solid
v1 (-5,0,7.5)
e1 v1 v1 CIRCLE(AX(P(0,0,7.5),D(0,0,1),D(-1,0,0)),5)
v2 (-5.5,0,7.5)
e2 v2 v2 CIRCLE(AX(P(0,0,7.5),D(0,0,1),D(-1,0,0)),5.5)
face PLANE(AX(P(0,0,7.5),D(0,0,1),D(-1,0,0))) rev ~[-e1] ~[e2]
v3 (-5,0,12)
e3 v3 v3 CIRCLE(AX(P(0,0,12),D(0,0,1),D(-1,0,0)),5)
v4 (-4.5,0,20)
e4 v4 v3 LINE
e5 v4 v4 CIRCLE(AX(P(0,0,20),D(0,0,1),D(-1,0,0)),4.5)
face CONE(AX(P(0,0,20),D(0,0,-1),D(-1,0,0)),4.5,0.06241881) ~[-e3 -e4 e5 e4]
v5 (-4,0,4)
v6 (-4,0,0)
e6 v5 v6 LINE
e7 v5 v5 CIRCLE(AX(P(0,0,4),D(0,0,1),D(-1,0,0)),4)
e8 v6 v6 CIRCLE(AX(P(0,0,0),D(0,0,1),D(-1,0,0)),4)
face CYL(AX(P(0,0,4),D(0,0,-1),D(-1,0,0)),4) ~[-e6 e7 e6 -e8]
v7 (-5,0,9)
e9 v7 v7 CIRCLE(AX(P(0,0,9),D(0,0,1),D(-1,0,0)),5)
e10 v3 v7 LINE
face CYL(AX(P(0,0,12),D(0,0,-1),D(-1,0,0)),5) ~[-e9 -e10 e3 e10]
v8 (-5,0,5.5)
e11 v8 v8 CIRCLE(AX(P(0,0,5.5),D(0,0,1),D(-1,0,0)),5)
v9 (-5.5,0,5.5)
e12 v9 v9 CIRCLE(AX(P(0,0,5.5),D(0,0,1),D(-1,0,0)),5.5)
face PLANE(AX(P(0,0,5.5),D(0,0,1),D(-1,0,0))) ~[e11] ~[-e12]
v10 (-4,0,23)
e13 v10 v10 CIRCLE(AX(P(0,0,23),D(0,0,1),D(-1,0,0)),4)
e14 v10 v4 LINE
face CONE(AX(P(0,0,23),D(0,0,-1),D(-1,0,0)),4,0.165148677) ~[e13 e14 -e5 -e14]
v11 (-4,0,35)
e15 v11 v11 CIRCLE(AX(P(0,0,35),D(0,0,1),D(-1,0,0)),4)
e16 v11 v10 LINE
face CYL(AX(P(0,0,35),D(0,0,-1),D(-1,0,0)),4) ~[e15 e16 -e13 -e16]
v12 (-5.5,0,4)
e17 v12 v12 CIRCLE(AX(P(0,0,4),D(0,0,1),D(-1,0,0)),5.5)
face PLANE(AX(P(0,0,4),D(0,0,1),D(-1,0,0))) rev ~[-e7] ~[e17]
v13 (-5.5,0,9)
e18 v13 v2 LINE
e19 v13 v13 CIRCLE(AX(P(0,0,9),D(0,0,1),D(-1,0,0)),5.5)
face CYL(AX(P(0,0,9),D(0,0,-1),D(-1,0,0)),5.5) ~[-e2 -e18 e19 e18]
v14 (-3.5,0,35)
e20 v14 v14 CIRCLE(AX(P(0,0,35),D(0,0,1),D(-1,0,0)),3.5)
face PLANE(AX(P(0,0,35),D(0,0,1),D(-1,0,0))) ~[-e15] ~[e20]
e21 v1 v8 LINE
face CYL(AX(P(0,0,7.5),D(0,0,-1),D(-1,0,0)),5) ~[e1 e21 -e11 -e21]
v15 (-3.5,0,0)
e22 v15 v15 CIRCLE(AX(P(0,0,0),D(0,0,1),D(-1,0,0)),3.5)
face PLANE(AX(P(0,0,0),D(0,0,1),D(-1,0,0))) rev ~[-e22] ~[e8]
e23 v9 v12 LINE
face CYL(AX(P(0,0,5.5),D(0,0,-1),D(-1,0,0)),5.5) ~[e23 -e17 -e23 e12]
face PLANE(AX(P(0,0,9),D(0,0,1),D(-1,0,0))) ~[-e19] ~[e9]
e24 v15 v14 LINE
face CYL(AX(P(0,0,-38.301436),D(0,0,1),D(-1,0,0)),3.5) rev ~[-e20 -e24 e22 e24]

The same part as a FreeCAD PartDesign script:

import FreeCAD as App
import Part
import Sketcher
from FreeCAD import Vector
Q = App.Units.Quantity

doc = App.newDocument("Part")
body = doc.addObject("PartDesign::Body", "Body")

sketch1 = body.newObject("Sketcher::SketchObject", "Sketch")
sketch1.AttachmentSupport = (doc.getObject("XZ_Plane"), [""])
sketch1.MapMode = "FlatFace"
sketch1.addGeometry([
    Part.LineSegment(Vector(-4, 0, 0), Vector(0, 0, 0)),
    Part.LineSegment(Vector(0, 0, 0), Vector(0, 35, 0)),
    Part.LineSegment(Vector(0, 35, 0), Vector(-4, 35, 0)),
    Part.LineSegment(Vector(-4, 35, 0), Vector(-4, 23, 0)),
    Part.LineSegment(Vector(-4, 23, 0), Vector(-4.5, 20, 0)),
    Part.LineSegment(Vector(-4.5, 20, 0), Vector(-5, 12, 0)),
    Part.LineSegment(Vector(-5, 12, 0), Vector(-5, 9, 0)),
    Part.LineSegment(Vector(-5, 9, 0), Vector(-5.5, 9, 0)),
    Part.LineSegment(Vector(-5.5, 9, 0), Vector(-5.5, 7.5, 0)),
    Part.LineSegment(Vector(-5.5, 7.5, 0), Vector(-5, 7.5, 0)),
    Part.LineSegment(Vector(-5, 7.5, 0), Vector(-5, 5.5, 0)),
    Part.LineSegment(Vector(-5, 5.5, 0), Vector(-5.5, 5.5, 0)),
    Part.LineSegment(Vector(-5.5, 5.5, 0), Vector(-5.5, 4, 0)),
    Part.LineSegment(Vector(-5.5, 4, 0), Vector(-4, 4, 0)),
    Part.LineSegment(Vector(-4, 4, 0), Vector(-4, 0, 0)),
], False)
sketch1.addConstraint([
    Sketcher.Constraint("Coincident", 0, 2, 1, 1),
    Sketcher.Constraint("Coincident", 1, 2, 2, 1),
    Sketcher.Constraint("Coincident", 2, 2, 3, 1),
    Sketcher.Constraint("Coincident", 3, 2, 4, 1),
    Sketcher.Constraint("Coincident", 4, 2, 5, 1),
    Sketcher.Constraint("Coincident", 5, 2, 6, 1),
    Sketcher.Constraint("Coincident", 6, 2, 7, 1),
    Sketcher.Constraint("Coincident", 7, 2, 8, 1),
    Sketcher.Constraint("Coincident", 8, 2, 9, 1),
    Sketcher.Constraint("Coincident", 9, 2, 10, 1),
    Sketcher.Constraint("Coincident", 10, 2, 11, 1),
    Sketcher.Constraint("Coincident", 11, 2, 12, 1),
    Sketcher.Constraint("Coincident", 12, 2, 13, 1),
    Sketcher.Constraint("Coincident", 13, 2, 14, 1),
    Sketcher.Constraint("Coincident", 14, 2, 0, 1),
    Sketcher.Constraint("Horizontal", 0),
    Sketcher.Constraint("Vertical", 1),
    Sketcher.Constraint("Horizontal", 2),
    Sketcher.Constraint("Vertical", 3),
    Sketcher.Constraint("Vertical", 6),
    Sketcher.Constraint("Horizontal", 7),
    Sketcher.Constraint("Vertical", 8),
    Sketcher.Constraint("Horizontal", 9),
    Sketcher.Constraint("Vertical", 10),
    Sketcher.Constraint("Horizontal", 11),
    Sketcher.Constraint("Vertical", 12),
    Sketcher.Constraint("Horizontal", 13),
    Sketcher.Constraint("Vertical", 14),
    Sketcher.Constraint("Coincident", 0, 2, -1, 1),
    Sketcher.Constraint("Vertical", 6, 2, 9, 2),
    Sketcher.Constraint("Vertical", 8, 2, 11, 2),
    Sketcher.Constraint("Vertical", 3, 2, 13, 2),
    Sketcher.Constraint("Equal", 13, 8),
    Sketcher.Constraint("Equal", 8, 12),
    Sketcher.Constraint("Equal", 2, 14),
    Sketcher.Constraint("DistanceX", 0, 1, 0, 2, Q("4 mm")),
    Sketcher.Constraint("DistanceY", 1, 1, 1, 2, Q("35 mm")),
    Sketcher.Constraint("DistanceY", 3, 2, 3, 1, Q("12 mm")),
    Sketcher.Constraint("DistanceY", 6, 2, 6, 1, Q("3 mm")),
    Sketcher.Constraint("DistanceY", 10, 2, 10, 1, Q("2 mm")),
    Sketcher.Constraint("DistanceX", 7, 2, 7, 1, Q("0.5 mm")),
    Sketcher.Constraint("DistanceX", 13, 1, 13, 2, Q("1.5 mm")),
    Sketcher.Constraint("DistanceY", -1, 1, 4, 2, Q("20 mm")),
    Sketcher.Constraint("DistanceX", 7, 2, 4, 2, Q("1 mm")),
])
revolution = body.newObject("PartDesign::Revolution", "Revolution")
revolution.Profile = sketch1
revolution.ReferenceAxis = (sketch1, ["V_Axis"])
revolution.Angle = 360

sketch2 = body.newObject("Sketcher::SketchObject", "Sketch001")
sketch2.AttachmentSupport = (doc.getObject("XY_Plane"), [""])
sketch2.MapMode = "FlatFace"
sketch2.addGeometry(Part.Circle(Vector(0, 0, 0), Vector(0, 0, 1), 3.5), False)
sketch2.addConstraint([
    Sketcher.Constraint("Coincident", 0, 3, -1, 1),
    Sketcher.Constraint("Diameter", 0, Q("7 mm")),
])
doc.recompute()
hole = body.newObject("PartDesign::Hole", "Hole")
hole.Profile = sketch2
hole.ThreadType = "None"
hole.Diameter = 7
hole.DepthType = "ThroughAll"
hole.Reversed = True

doc.recompute()
